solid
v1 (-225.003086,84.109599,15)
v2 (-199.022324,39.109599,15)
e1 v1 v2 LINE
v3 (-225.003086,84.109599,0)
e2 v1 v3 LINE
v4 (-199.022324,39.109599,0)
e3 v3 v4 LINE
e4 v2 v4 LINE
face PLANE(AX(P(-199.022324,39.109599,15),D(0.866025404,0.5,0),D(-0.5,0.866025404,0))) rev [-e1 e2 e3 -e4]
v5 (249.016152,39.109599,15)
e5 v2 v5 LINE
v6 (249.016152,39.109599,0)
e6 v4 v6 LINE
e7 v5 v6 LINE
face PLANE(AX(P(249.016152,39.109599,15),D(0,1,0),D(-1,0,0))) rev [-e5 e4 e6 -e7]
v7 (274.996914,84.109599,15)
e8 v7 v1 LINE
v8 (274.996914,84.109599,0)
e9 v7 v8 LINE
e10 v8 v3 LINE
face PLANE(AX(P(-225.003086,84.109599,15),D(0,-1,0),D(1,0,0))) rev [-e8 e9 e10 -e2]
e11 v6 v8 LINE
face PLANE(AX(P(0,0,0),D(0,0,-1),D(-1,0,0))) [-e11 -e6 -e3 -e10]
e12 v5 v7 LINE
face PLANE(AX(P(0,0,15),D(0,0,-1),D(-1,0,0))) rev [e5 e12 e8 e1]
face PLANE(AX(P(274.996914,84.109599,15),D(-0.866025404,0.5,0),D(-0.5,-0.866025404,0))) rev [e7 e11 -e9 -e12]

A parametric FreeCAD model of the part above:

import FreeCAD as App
import Part
import Sketcher
Q = App.Units.Quantity

doc = App.newDocument("Part")
body = doc.addObject("PartDesign::Body", "Body")

sketch1 = body.newObject("Sketcher::SketchObject", "Sketch")
sketch1.AttachmentSupport = (doc.getObject("XY_Plane"), [""])
sketch1.MapMode = "FlatFace"
sketch1.addGeometry([
    Part.LineSegment(App.Vector(274.996914, 84.109599, 0), App.Vector(-225.003086, 84.109599, 0)),
    Part.LineSegment(App.Vector(-225.003086, 84.109599, 0), App.Vector(-199.022324, 39.109599, 0)),
    Part.LineSegment(App.Vector(-199.022324, 39.109599, 0), App.Vector(249.016152, 39.109599, 0)),
    Part.LineSegment(App.Vector(249.016152, 39.109599, 0), App.Vector(274.996914, 84.109599, 0)),
], False)
sketch1.addConstraint([
    Sketcher.Constraint("Coincident", 0, 2, 1, 1),
    Sketcher.Constraint("Coincident", 1, 2, 2, 1),
    Sketcher.Constraint("Coincident", 2, 2, 3, 1),
    Sketcher.Constraint("Coincident", 3, 2, 0, 1),
    Sketcher.Constraint("Horizontal", 0),
    Sketcher.Constraint("Horizontal", 2),
    Sketcher.Constraint("Equal", 1, 3),
    Sketcher.Constraint("DistanceX", 0, 2, 0, 1, 500.0),
    Sketcher.Constraint("Angle", 1, Q("-60 deg")),
    Sketcher.Constraint("DistanceY", 1, 2, 0, 2, 45.0),
    Sketcher.Constraint("DistanceY", -1, 1, 0, 2, 84.109599),
    Sketcher.Constraint("DistanceX", 0, 2, -1, 1, 225.003086),
])
pad1 = body.newObject("PartDesign::Pad", "Pad")
pad1.Profile = sketch1
pad1.Length = 15

doc.recompute()
